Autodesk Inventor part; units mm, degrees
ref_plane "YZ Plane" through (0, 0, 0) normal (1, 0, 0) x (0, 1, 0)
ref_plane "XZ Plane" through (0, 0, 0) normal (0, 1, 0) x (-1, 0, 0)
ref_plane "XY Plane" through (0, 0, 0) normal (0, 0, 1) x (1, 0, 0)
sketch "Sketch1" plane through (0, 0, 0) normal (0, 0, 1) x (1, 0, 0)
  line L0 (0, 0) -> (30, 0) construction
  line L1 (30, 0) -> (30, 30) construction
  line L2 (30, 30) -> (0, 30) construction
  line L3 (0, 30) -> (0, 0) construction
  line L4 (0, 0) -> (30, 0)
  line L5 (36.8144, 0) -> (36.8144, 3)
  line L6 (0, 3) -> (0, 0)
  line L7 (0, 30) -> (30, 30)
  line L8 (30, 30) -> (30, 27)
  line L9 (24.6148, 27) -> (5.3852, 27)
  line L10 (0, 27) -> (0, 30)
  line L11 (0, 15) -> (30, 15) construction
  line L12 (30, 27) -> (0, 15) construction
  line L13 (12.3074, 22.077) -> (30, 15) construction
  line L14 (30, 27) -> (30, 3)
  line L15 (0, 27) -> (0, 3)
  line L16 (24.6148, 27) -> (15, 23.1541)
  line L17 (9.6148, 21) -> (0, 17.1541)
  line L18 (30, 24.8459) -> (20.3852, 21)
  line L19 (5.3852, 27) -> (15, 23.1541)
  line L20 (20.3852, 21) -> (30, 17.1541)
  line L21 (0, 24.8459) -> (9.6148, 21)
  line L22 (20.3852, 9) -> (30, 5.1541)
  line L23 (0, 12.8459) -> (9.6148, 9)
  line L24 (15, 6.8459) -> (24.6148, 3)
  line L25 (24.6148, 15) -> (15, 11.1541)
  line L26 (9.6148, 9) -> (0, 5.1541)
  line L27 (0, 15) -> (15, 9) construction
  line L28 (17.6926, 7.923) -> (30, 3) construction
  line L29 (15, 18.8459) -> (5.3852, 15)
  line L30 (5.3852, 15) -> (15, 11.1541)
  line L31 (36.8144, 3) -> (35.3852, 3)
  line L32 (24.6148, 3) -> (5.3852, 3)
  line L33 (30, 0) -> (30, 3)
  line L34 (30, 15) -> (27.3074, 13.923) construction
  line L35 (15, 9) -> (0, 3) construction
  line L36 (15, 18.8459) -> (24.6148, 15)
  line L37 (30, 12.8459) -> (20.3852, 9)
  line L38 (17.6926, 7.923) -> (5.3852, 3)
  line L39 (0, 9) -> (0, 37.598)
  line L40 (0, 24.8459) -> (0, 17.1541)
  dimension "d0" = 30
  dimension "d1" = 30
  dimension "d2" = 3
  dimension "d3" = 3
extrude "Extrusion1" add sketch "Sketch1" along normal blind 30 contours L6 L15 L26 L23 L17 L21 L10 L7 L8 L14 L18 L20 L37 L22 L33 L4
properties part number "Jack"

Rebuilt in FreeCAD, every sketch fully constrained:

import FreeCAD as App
import Part
import Sketcher

doc = App.newDocument("Part")
body = doc.addObject("PartDesign::Body", "Body")

# Sketch on XY plane
sketch1 = body.newObject("Sketcher::SketchObject", "Sketch")
sketch1.AttachmentSupport = (doc.getObject("XY_Plane"), [""])
sketch1.MapMode = "FlatFace"
sketch1.addGeometry([
    Part.LineSegment(App.Vector(0, 5.1541, 0), App.Vector(0, 0, 0)),  # 0
    Part.LineSegment(App.Vector(0, 0, 0), App.Vector(30, 0, 0)),  # 1
    Part.LineSegment(App.Vector(30, 0, 0), App.Vector(30, 5.1541, 0)),  # 2
    Part.LineSegment(App.Vector(30, 5.1541, 0), App.Vector(20.3852, 9, 0)),  # 3
    Part.LineSegment(App.Vector(20.3852, 9, 0), App.Vector(30, 12.8459, 0)),  # 4
    Part.LineSegment(App.Vector(30, 12.8459, 0), App.Vector(30, 17.1541, 0)),  # 5
    Part.LineSegment(App.Vector(30, 17.1541, 0), App.Vector(20.3852, 21, 0)),  # 6
    Part.LineSegment(App.Vector(20.3852, 21, 0), App.Vector(30, 24.8459, 0)),  # 7
    Part.LineSegment(App.Vector(30, 24.8459, 0), App.Vector(30, 30, 0)),  # 8
    Part.LineSegment(App.Vector(30, 30, 0), App.Vector(0, 30, 0)),  # 9
    Part.LineSegment(App.Vector(0, 30, 0), App.Vector(0, 24.8459, 0)),  # 10
    Part.LineSegment(App.Vector(0, 24.8459, 0), App.Vector(9.6148, 21, 0)),  # 11
    Part.LineSegment(App.Vector(9.6148, 21, 0), App.Vector(0, 17.1541, 0)),  # 12
    Part.LineSegment(App.Vector(0, 17.1541, 0), App.Vector(0, 12.8459, 0)),  # 13
    Part.LineSegment(App.Vector(0, 12.8459, 0), App.Vector(9.6148, 9, 0)),  # 14
    Part.LineSegment(App.Vector(9.6148, 9, 0), App.Vector(0, 5.1541, 0)),  # 15
    Part.LineSegment(App.Vector(5.3852, 3, 0), App.Vector(14.999982, 6.845944, 0)),  # 16
    Part.LineSegment(App.Vector(15, 6.8459, 0), App.Vector(24.6148, 3, 0)),  # 17
    Part.LineSegment(App.Vector(24.6148, 3, 0), App.Vector(5.3852, 3, 0)),  # 18
    Part.LineSegment(App.Vector(15, 18.8459, 0), App.Vector(24.6148, 15, 0)),  # 19
    Part.LineSegment(App.Vector(24.6148, 15, 0), App.Vector(15, 11.1541, 0)),  # 20
    Part.LineSegment(App.Vector(15, 11.1541, 0), App.Vector(5.3852, 15, 0)),  # 21
    Part.LineSegment(App.Vector(5.3852, 15, 0), App.Vector(15, 18.8459, 0)),  # 22
    Part.LineSegment(App.Vector(5.3852, 27, 0), App.Vector(24.6148, 27, 0)),  # 23
    Part.LineSegment(App.Vector(24.6148, 27, 0), App.Vector(15, 23.1541, 0)),  # 24
    Part.LineSegment(App.Vector(15, 23.1541, 0), App.Vector(5.3852, 27, 0)),  # 25
], False)
sketch1.addConstraint([
    Sketcher.Constraint("Coincident", 0, 2, 1, 1),
    Sketcher.Constraint("Coincident", 1, 2, 2, 1),
    Sketcher.Constraint("Coincident", 2, 2, 3, 1),
    Sketcher.Constraint("Coincident", 3, 2, 4, 1),
    Sketcher.Constraint("Coincident", 4, 2, 5, 1),
    Sketcher.Constraint("Coincident", 5, 2, 6, 1),
    Sketcher.Constraint("Coincident", 6, 2, 7, 1),
    Sketcher.Constraint("Coincident", 7, 2, 8, 1),
    Sketcher.Constraint("Coincident", 8, 2, 9, 1),
    Sketcher.Constraint("Coincident", 9, 2, 10, 1),
    Sketcher.Constraint("Coincident", 10, 2, 11, 1),
    Sketcher.Constraint("Coincident", 11, 2, 12, 1),
    Sketcher.Constraint("Coincident", 12, 2, 13, 1),
    Sketcher.Constraint("Coincident", 13, 2, 14, 1),
    Sketcher.Constraint("Coincident", 14, 2, 15, 1),
    Sketcher.Constraint("Coincident", 15, 2, 0, 1),
    Sketcher.Constraint("Coincident", 16, 2, 17, 1),
    Sketcher.Constraint("Coincident", 17, 2, 18, 1),
    Sketcher.Constraint("Coincident", 18, 2, 16, 1),
    Sketcher.Constraint("Coincident", 19, 2, 20, 1),
    Sketcher.Constraint("Coincident", 20, 2, 21, 1),
    Sketcher.Constraint("Coincident", 21, 2, 22, 1),
    Sketcher.Constraint("Coincident", 22, 2, 19, 1),
    Sketcher.Constraint("Coincident", 23, 2, 24, 1),
    Sketcher.Constraint("Coincident", 24, 2, 25, 1),
    Sketcher.Constraint("Coincident", 25, 2, 23, 1),
    Sketcher.Constraint("Vertical", 0),
    Sketcher.Constraint("Horizontal", 1),
    Sketcher.Constraint("Vertical", 2),
    Sketcher.Constraint("Vertical", 5),
    Sketcher.Constraint("Vertical", 8),
    Sketcher.Constraint("Horizontal", 9),
    Sketcher.Constraint("Vertical", 10),
    Sketcher.Constraint("Vertical", 13),
    Sketcher.Constraint("Horizontal", 18),
    Sketcher.Constraint("Horizontal", 23),
    Sketcher.Constraint("Coincident", 0, 2, -1, 1),
    Sketcher.Constraint("PointOnObject", 9, 2, -2),
    Sketcher.Constraint("PointOnObject", 12, 2, -2),
    Sketcher.Constraint("Parallel", 3, 6),
    Sketcher.Constraint("Parallel", 4, 7),
    Sketcher.Constraint("Parallel", 6, 11),
    Sketcher.Constraint("Parallel", 7, 12),
    Sketcher.Constraint("Parallel", 11, 14),
    Sketcher.Constraint("Parallel", 12, 15),
    Sketcher.Constraint("Parallel", 15, 16),
    Sketcher.Constraint("Parallel", 14, 17),
    Sketcher.Constraint("Parallel", 17, 19),
    Sketcher.Constraint("Parallel", 16, 20),
    Sketcher.Constraint("Parallel", 19, 21),
    Sketcher.Constraint("Parallel", 20, 22),
    Sketcher.Constraint("Parallel", 22, 24),
    Sketcher.Constraint("Parallel", 21, 25),
    Sketcher.Constraint("Horizontal", 7, 2, 10, 2),
    Sketcher.Constraint("Horizontal", 6, 2, 11, 2),
    Sketcher.Constraint("Horizontal", 5, 2, 12, 2),
    Sketcher.Constraint("Horizontal", 4, 2, 13, 2),
    Sketcher.Constraint("Horizontal", 3, 2, 14, 2),
    Sketcher.Constraint("Horizontal", 2, 2, 15, 2),
    Sketcher.Constraint("Horizontal", 19, 2, 21, 2),
    Sketcher.Constraint("Vertical", 2, 2, 4, 2),
    Sketcher.Constraint("Vertical", 3, 2, 6, 2),
    Sketcher.Constraint("Vertical", 17, 2, 19, 2),
    Sketcher.Constraint("Vertical", 16, 2, 20, 2),
    Sketcher.Constraint("Vertical", 19, 2, 23, 2),
    Sketcher.Constraint("Vertical", 22, 2, 24, 2),
    Sketcher.Constraint("Equal", 2, 8),
    Sketcher.Constraint("Equal", 15, 16),
    Sketcher.Constraint("DistanceX", 1, 1, 1, 2, 30.0),
    Sketcher.Constraint("DistanceY", -1, 1, 8, 2, 30.0),
    Sketcher.Constraint("DistanceY", -1, 1, 17, 2, 3.0),
    Sketcher.Constraint("DistanceY", 23, 2, 8, 2, 3.0),
    Sketcher.Constraint("DistanceY", -1, 1, 3, 2, 9.0),
    Sketcher.Constraint("DistanceX", -1, 1, 16, 2, 15.0),
    Sketcher.Constraint("DistanceY", -1, 1, 19, 2, 15.0),
    Sketcher.Constraint("DistanceY", 0, 2, 0, 1, 5.154),
    Sketcher.Constraint("DistanceX", 18, 2, 18, 1, 19.2296),
])
pad1 = body.newObject("PartDesign::Pad", "Pad")
pad1.Profile = sketch1
pad1.Length = 30

doc.recompute()
